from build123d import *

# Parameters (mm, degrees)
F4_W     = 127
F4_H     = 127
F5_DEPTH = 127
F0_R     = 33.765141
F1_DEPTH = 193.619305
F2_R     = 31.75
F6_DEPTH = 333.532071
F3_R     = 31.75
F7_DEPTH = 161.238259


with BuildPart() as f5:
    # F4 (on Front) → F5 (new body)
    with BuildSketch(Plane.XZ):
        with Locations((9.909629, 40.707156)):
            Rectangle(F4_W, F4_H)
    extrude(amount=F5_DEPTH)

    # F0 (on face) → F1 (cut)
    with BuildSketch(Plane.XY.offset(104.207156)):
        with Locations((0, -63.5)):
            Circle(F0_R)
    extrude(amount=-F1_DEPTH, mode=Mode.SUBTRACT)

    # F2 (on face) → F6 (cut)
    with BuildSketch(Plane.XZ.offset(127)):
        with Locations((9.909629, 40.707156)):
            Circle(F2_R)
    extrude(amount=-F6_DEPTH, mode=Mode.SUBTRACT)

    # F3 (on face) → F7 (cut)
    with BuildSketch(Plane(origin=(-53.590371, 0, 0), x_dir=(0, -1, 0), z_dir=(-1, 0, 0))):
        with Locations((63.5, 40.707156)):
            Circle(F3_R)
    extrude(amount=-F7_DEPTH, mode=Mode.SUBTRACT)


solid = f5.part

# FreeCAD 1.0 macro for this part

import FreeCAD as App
import Part
import Sketcher
from FreeCAD import Vector
Q = App.Units.Quantity


def add_polygon(sketch, points):
    """Adds a closed chain of lines whose ends are joined by coincident constraints."""
    first, n = sketch.GeometryCount, len(points)
    for a, b in zip(points, points[1:] + points[:1]):
        sketch.addGeometry(Part.LineSegment(App.Vector(*a, 0), App.Vector(*b, 0)), False)
    for i in range(n):
        sketch.addConstraint(Sketcher.Constraint("Coincident", first + i, 2, first + (i + 1) % n, 1))

doc = App.newDocument("Part")
body = doc.addObject("PartDesign::Body", "Body")

sketch1 = body.newObject("Sketcher::SketchObject", "Sketch")
sketch1.AttachmentSupport = (doc.getObject("XZ_Plane"), [""])
sketch1.MapMode = "FlatFace"
add_polygon(sketch1, [(-54, 104), (-54, -23), (73, -23), (73, 104)])
sketch1.addConstraint(Sketcher.Constraint("Vertical", 0))
sketch1.addConstraint(Sketcher.Constraint("Horizontal", 1))
sketch1.addConstraint(Sketcher.Constraint("Vertical", 2))
sketch1.addConstraint(Sketcher.Constraint("Horizontal", 3))
sketch1.addConstraint(Sketcher.Constraint("Equal", 3, 0))
sketch1.addConstraint(Sketcher.Constraint("DistanceX", 1, 1, 1, 2, Q("5 in")))
sketch1.addConstraint(Sketcher.Constraint("DistanceX", 0, 2, -1, 1, Q("53.590371 mm")))
sketch1.addConstraint(Sketcher.Constraint("DistanceY", 0, 2, -1, 1, Q("22.792844 mm")))
pad1 = body.newObject("PartDesign::Pad", "Pad")
pad1.Profile = sketch1
pad1.Length = Q("5 in")

sketch2 = body.newObject("Sketcher::SketchObject", "Sketch001")
sketch2.AttachmentSupport = (doc.getObject("XY_Plane"), [""])
sketch2.MapMode = "FlatFace"
sketch2.AttachmentOffset = App.Placement(Vector(0, 0, 104.207156), App.Rotation())
sketch2.addGeometry(Part.Circle(Vector(0, -64, 0), Vector(0, 0, 1), 34), False)
sketch2.addConstraint(Sketcher.Constraint("PointOnObject", 0, 3, -2))
sketch2.addConstraint(Sketcher.Constraint("DistanceY", 0, 3, -1, 1, Q("2.5 in")))
sketch2.addConstraint(Sketcher.Constraint("Diameter", 0, Q("67.530282 mm")))
pocket1 = body.newObject("PartDesign::Pocket", "Pocket")
pocket1.Profile = sketch2
pocket1.Length = 193.619305

sketch3 = body.newObject("Sketcher::SketchObject", "Sketch002")
sketch3.AttachmentSupport = (doc.getObject("XZ_Plane"), [""])
sketch3.MapMode = "FlatFace"
sketch3.AttachmentOffset = App.Placement(Vector(0, 0, 5 * 25.4), App.Rotation())
sketch3.addGeometry(Part.Circle(Vector(10, 41, 0), Vector(0, 0, 1), 32), False)
sketch3.addConstraint(Sketcher.Constraint("Diameter", 0, Q("2.5 in")))
sketch3.addConstraint(Sketcher.Constraint("DistanceX", -1, 1, 0, 3, Q("9.909629 mm")))
sketch3.addConstraint(Sketcher.Constraint("DistanceY", -1, 1, 0, 3, Q("40.707156 mm")))
pocket2 = body.newObject("PartDesign::Pocket", "Pocket001")
pocket2.Profile = sketch3
pocket2.Length = 333.532071

sketch4 = body.newObject("Sketcher::SketchObject", "Sketch003")
sketch4.AttachmentSupport = (doc.getObject("YZ_Plane"), [""])
sketch4.MapMode = "FlatFace"
sketch4.AttachmentOffset = App.Placement(Vector(0, 0, -53.590371), App.Rotation())
sketch4.addGeometry(Part.Circle(Vector(-64, 41, 0), Vector(0, 0, 1), 32), False)
sketch4.addConstraint(Sketcher.Constraint("Diameter", 0, Q("2.5 in")))
sketch4.addConstraint(Sketcher.Constraint("DistanceX", 0, 3, -1, 1, Q("2.5 in")))
sketch4.addConstraint(Sketcher.Constraint("DistanceY", -1, 1, 0, 3, Q("40.707156 mm")))
pocket3 = body.newObject("PartDesign::Pocket", "Pocket002")
pocket3.Profile = sketch4
pocket3.Length = 161.238259
pocket3.Reversed = True

doc.recompute()
